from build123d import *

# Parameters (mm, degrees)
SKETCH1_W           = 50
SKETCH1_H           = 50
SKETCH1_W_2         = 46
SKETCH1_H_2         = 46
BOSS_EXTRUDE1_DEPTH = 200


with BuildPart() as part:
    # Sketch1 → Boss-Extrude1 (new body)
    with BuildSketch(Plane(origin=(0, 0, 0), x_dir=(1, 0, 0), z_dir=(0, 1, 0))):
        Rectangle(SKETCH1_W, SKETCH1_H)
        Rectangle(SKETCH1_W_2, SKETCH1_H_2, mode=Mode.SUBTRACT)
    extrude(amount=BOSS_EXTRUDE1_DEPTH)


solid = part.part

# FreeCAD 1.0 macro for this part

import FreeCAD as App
import Part
import Sketcher

V = App.Vector


def add_polygon(sketch, points):
    """Adds a closed chain of lines whose ends are joined by coincident constraints."""
    first, n = sketch.GeometryCount, len(points)
    for a, b in zip(points, points[1:] + points[:1]):
        sketch.addGeometry(Part.LineSegment(App.Vector(*a, 0), App.Vector(*b, 0)), False)
    for i in range(n):
        sketch.addConstraint(Sketcher.Constraint("Coincident", first + i, 2, first + (i + 1) % n, 1))

doc = App.newDocument("Part")
body = doc.addObject("PartDesign::Body", "Body")

sketch1 = body.newObject("Sketcher::SketchObject", "Sketch")
sketch1.AttachmentSupport = (doc.getObject("XZ_Plane"), [""])
sketch1.MapMode = "FlatFace"
add_polygon(sketch1, [(-25, -25), (-25, 25), (25, 25), (25, -25)])
add_polygon(sketch1, [(23, 23), (-23, 23), (-23, -23), (23, -23)])
sketch1.addConstraint(Sketcher.Constraint("Vertical", 0))
sketch1.addConstraint(Sketcher.Constraint("Horizontal", 1))
sketch1.addConstraint(Sketcher.Constraint("Vertical", 2))
sketch1.addConstraint(Sketcher.Constraint("Horizontal", 3))
sketch1.addConstraint(Sketcher.Constraint("Horizontal", 4))
sketch1.addConstraint(Sketcher.Constraint("Vertical", 5))
sketch1.addConstraint(Sketcher.Constraint("Horizontal", 6))
sketch1.addConstraint(Sketcher.Constraint("Vertical", 7))
sketch1.addConstraint(Sketcher.Constraint("Symmetric", 0, 2, 2, 2, -1, 1))
sketch1.addConstraint(Sketcher.Constraint("Symmetric", 4, 2, 6, 2, -1, 1))
sketch1.addConstraint(Sketcher.Constraint("Equal", 3, 0))
sketch1.addConstraint(Sketcher.Constraint("Equal", 6, 5))
sketch1.addConstraint(Sketcher.Constraint("DistanceX", 1, 1, 1, 2, 50.0))
sketch1.addConstraint(Sketcher.Constraint("DistanceX", 4, 2, 4, 1, 46.0))
pad1 = body.newObject("PartDesign::Pad", "Pad")
pad1.Profile = sketch1
pad1.Length = 200
pad1.Reversed = True

doc.recompute()
